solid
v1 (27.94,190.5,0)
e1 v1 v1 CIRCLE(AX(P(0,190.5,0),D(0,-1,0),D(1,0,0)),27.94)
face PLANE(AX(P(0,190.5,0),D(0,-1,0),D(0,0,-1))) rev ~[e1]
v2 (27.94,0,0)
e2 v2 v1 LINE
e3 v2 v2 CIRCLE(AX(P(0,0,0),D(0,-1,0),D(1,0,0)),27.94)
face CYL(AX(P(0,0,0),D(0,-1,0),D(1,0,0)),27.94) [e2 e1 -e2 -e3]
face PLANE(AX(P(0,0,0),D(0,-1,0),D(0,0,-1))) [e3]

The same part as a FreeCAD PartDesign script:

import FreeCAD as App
import Part
import Sketcher
Q = App.Units.Quantity

doc = App.newDocument("Part")
body = doc.addObject("PartDesign::Body", "Body")

# Sketch on XZ plane
sketch1 = doc.addObject("Sketcher::SketchObject", "Sketch")
body.addObject(sketch1)
sketch1.AttachmentSupport = (doc.XZ_Plane, [""])
sketch1.MapMode = "FlatFace"
sketch1.addGeometry(Part.Circle(App.Vector(0, 0, 0), App.Vector(0, 0, 1), 28), False)
sketch1.addConstraint(Sketcher.Constraint("Coincident", 0, 3, -1, 1))
sketch1.addConstraint(Sketcher.Constraint("Diameter", 0, Q("2.2 in")))
pad1 = doc.addObject("PartDesign::Pad", "Pad")
body.addObject(pad1)
pad1.Profile = sketch1
pad1.Length = Q("7.5 in")
pad1.Reversed = True

doc.recompute()
